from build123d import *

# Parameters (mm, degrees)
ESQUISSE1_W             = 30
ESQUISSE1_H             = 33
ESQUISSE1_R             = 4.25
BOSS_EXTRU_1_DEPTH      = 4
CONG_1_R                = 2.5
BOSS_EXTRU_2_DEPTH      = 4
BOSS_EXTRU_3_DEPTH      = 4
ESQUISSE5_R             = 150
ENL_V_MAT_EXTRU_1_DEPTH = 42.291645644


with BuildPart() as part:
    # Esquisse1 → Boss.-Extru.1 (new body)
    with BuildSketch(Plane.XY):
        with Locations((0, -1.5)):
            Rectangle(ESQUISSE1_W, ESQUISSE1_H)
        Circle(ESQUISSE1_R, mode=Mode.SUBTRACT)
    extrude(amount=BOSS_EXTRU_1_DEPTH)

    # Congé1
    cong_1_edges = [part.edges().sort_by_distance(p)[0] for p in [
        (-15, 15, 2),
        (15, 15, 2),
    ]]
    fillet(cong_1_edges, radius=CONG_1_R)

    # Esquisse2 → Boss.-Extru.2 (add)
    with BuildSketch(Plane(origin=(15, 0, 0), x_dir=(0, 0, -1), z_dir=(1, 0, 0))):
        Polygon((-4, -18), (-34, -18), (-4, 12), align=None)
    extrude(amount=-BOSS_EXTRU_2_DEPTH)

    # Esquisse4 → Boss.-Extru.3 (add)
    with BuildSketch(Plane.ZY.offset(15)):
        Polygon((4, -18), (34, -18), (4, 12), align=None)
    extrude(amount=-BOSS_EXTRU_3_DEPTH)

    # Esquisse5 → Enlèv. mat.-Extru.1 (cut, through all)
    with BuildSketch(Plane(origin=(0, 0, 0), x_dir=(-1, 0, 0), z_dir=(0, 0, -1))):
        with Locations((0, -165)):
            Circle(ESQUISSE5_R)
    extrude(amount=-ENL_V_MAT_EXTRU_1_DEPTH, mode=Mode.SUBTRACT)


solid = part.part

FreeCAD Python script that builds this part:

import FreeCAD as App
import Part
import Sketcher
Q = App.Units.Quantity


def edges_at(feature, points):
    """Names of the edges that pass closest to the given points."""
    edges = feature.Shape.Edges
    near = lambda p: min(range(len(edges)), key=lambda i: edges[i].distToShape(Part.Vertex(*p))[0])
    return sorted({f"Edge{near(p) + 1}" for p in points})


def add_polygon(sketch, points):
    """Adds a closed chain of lines whose ends are joined by coincident constraints."""
    first, n = sketch.GeometryCount, len(points)
    for a, b in zip(points, points[1:] + points[:1]):
        sketch.addGeometry(Part.LineSegment(App.Vector(*a, 0), App.Vector(*b, 0)), False)
    for i in range(n):
        sketch.addConstraint(Sketcher.Constraint("Coincident", first + i, 2, first + (i + 1) % n, 1))

doc = App.newDocument("Part")
body = doc.addObject("PartDesign::Body", "Body")

# Sketch on XY plane
sketch1 = body.newObject("Sketcher::SketchObject", "Sketch")
sketch1.AttachmentSupport = (doc.getObject("XY_Plane"), [""])
sketch1.MapMode = "FlatFace"
add_polygon(sketch1, [(-15, 15), (-15, -18), (15, -18), (15, 15)])  # lines 0-3
sketch1.addGeometry(Part.Circle(App.Vector(0, 0, 0), App.Vector(0, 0, 1), 4.2), False)  # 4
sketch1.addConstraint(Sketcher.Constraint("Vertical", 0))
sketch1.addConstraint(Sketcher.Constraint("Horizontal", 1))
sketch1.addConstraint(Sketcher.Constraint("Vertical", 2))
sketch1.addConstraint(Sketcher.Constraint("Horizontal", 3))
sketch1.addConstraint(Sketcher.Constraint("Coincident", 4, 3, -1, 1))
sketch1.addConstraint(Sketcher.Constraint("Diameter", 4, Q("8.5 mm")))
sketch1.addConstraint(Sketcher.Constraint("DistanceX", 1, 1, 1, 2, Q("30 mm")))
sketch1.addConstraint(Sketcher.Constraint("DistanceY", 0, 2, 0, 1, Q("33 mm")))
sketch1.addConstraint(Sketcher.Constraint("DistanceX", 0, 2, -1, 1, Q("15 mm")))
sketch1.addConstraint(Sketcher.Constraint("DistanceY", 0, 2, -1, 1, Q("18 mm")))
pad1 = body.newObject("PartDesign::Pad", "Pad")
pad1.Profile = sketch1
pad1.Length = 4
doc.recompute()

fillet = body.newObject("PartDesign::Fillet", "Fillet")
fillet.Base = (pad1, edges_at(pad1, [(-15, 15, 2), (15, 15, 2)]))
fillet.Radius = 2.5

# Sketch on YZ plane
sketch2 = body.newObject("Sketcher::SketchObject", "Sketch001")
sketch2.AttachmentSupport = (doc.getObject("YZ_Plane"), [""])
sketch2.MapMode = "FlatFace"
sketch2.AttachmentOffset = App.Placement(App.Vector(0, 0, 15), App.Rotation())
add_polygon(sketch2, [(-18, 34), (-18, 4), (12, 4)])  # lines 0-2
sketch2.addConstraint(Sketcher.Constraint("Vertical", 0))
sketch2.addConstraint(Sketcher.Constraint("Horizontal", 1))
sketch2.addConstraint(Sketcher.Constraint("Equal", 1, 0))
sketch2.addConstraint(Sketcher.Constraint("DistanceX", 1, 1, 1, 2, Q("30 mm")))
sketch2.addConstraint(Sketcher.Constraint("DistanceX", 0, 2, -1, 1, Q("18 mm")))
sketch2.addConstraint(Sketcher.Constraint("DistanceY", -1, 1, 0, 2, Q("4 mm")))
pad2 = body.newObject("PartDesign::Pad", "Pad001")
pad2.Profile = sketch2
pad2.Length = 4
pad2.Reversed = True

# Sketch on YZ plane
sketch3 = body.newObject("Sketcher::SketchObject", "Sketch002")
sketch3.AttachmentSupport = (doc.getObject("YZ_Plane"), [""])
sketch3.MapMode = "FlatFace"
sketch3.AttachmentOffset = App.Placement(App.Vector(0, 0, -15), App.Rotation())
add_polygon(sketch3, [(-18, 4), (-18, 34), (12, 4)])  # lines 0-2
sketch3.addConstraint(Sketcher.Constraint("Vertical", 0))
sketch3.addConstraint(Sketcher.Constraint("Horizontal", 2))
sketch3.addConstraint(Sketcher.Constraint("Equal", 2, 0))
sketch3.addConstraint(Sketcher.Constraint("DistanceX", 2, 2, 2, 1, Q("30 mm")))
sketch3.addConstraint(Sketcher.Constraint("DistanceX", 0, 2, -1, 1, Q("18 mm")))
sketch3.addConstraint(Sketcher.Constraint("DistanceY", -1, 1, 0, 2, Q("34 mm")))
pad3 = body.newObject("PartDesign::Pad", "Pad002")
pad3.Profile = sketch3
pad3.Length = 4

# Sketch on XY plane
sketch4 = body.newObject("Sketcher::SketchObject", "Sketch003")
sketch4.AttachmentSupport = (doc.getObject("XY_Plane"), [""])
sketch4.MapMode = "FlatFace"
sketch4.addGeometry(Part.Circle(App.Vector(0, -165, 0), App.Vector(0, 0, 1), 150), False)
sketch4.addConstraint(Sketcher.Constraint("PointOnObject", 0, 3, -2))
sketch4.addConstraint(Sketcher.Constraint("Diameter", 0, Q("300 mm")))
sketch4.addConstraint(Sketcher.Constraint("DistanceY", 0, 3, -1, 1, Q("165 mm")))
pocket1 = body.newObject("PartDesign::Pocket", "Pocket")
pocket1.Profile = sketch4
pocket1.Type = "ThroughAll"
pocket1.Reversed = True

doc.recompute()
